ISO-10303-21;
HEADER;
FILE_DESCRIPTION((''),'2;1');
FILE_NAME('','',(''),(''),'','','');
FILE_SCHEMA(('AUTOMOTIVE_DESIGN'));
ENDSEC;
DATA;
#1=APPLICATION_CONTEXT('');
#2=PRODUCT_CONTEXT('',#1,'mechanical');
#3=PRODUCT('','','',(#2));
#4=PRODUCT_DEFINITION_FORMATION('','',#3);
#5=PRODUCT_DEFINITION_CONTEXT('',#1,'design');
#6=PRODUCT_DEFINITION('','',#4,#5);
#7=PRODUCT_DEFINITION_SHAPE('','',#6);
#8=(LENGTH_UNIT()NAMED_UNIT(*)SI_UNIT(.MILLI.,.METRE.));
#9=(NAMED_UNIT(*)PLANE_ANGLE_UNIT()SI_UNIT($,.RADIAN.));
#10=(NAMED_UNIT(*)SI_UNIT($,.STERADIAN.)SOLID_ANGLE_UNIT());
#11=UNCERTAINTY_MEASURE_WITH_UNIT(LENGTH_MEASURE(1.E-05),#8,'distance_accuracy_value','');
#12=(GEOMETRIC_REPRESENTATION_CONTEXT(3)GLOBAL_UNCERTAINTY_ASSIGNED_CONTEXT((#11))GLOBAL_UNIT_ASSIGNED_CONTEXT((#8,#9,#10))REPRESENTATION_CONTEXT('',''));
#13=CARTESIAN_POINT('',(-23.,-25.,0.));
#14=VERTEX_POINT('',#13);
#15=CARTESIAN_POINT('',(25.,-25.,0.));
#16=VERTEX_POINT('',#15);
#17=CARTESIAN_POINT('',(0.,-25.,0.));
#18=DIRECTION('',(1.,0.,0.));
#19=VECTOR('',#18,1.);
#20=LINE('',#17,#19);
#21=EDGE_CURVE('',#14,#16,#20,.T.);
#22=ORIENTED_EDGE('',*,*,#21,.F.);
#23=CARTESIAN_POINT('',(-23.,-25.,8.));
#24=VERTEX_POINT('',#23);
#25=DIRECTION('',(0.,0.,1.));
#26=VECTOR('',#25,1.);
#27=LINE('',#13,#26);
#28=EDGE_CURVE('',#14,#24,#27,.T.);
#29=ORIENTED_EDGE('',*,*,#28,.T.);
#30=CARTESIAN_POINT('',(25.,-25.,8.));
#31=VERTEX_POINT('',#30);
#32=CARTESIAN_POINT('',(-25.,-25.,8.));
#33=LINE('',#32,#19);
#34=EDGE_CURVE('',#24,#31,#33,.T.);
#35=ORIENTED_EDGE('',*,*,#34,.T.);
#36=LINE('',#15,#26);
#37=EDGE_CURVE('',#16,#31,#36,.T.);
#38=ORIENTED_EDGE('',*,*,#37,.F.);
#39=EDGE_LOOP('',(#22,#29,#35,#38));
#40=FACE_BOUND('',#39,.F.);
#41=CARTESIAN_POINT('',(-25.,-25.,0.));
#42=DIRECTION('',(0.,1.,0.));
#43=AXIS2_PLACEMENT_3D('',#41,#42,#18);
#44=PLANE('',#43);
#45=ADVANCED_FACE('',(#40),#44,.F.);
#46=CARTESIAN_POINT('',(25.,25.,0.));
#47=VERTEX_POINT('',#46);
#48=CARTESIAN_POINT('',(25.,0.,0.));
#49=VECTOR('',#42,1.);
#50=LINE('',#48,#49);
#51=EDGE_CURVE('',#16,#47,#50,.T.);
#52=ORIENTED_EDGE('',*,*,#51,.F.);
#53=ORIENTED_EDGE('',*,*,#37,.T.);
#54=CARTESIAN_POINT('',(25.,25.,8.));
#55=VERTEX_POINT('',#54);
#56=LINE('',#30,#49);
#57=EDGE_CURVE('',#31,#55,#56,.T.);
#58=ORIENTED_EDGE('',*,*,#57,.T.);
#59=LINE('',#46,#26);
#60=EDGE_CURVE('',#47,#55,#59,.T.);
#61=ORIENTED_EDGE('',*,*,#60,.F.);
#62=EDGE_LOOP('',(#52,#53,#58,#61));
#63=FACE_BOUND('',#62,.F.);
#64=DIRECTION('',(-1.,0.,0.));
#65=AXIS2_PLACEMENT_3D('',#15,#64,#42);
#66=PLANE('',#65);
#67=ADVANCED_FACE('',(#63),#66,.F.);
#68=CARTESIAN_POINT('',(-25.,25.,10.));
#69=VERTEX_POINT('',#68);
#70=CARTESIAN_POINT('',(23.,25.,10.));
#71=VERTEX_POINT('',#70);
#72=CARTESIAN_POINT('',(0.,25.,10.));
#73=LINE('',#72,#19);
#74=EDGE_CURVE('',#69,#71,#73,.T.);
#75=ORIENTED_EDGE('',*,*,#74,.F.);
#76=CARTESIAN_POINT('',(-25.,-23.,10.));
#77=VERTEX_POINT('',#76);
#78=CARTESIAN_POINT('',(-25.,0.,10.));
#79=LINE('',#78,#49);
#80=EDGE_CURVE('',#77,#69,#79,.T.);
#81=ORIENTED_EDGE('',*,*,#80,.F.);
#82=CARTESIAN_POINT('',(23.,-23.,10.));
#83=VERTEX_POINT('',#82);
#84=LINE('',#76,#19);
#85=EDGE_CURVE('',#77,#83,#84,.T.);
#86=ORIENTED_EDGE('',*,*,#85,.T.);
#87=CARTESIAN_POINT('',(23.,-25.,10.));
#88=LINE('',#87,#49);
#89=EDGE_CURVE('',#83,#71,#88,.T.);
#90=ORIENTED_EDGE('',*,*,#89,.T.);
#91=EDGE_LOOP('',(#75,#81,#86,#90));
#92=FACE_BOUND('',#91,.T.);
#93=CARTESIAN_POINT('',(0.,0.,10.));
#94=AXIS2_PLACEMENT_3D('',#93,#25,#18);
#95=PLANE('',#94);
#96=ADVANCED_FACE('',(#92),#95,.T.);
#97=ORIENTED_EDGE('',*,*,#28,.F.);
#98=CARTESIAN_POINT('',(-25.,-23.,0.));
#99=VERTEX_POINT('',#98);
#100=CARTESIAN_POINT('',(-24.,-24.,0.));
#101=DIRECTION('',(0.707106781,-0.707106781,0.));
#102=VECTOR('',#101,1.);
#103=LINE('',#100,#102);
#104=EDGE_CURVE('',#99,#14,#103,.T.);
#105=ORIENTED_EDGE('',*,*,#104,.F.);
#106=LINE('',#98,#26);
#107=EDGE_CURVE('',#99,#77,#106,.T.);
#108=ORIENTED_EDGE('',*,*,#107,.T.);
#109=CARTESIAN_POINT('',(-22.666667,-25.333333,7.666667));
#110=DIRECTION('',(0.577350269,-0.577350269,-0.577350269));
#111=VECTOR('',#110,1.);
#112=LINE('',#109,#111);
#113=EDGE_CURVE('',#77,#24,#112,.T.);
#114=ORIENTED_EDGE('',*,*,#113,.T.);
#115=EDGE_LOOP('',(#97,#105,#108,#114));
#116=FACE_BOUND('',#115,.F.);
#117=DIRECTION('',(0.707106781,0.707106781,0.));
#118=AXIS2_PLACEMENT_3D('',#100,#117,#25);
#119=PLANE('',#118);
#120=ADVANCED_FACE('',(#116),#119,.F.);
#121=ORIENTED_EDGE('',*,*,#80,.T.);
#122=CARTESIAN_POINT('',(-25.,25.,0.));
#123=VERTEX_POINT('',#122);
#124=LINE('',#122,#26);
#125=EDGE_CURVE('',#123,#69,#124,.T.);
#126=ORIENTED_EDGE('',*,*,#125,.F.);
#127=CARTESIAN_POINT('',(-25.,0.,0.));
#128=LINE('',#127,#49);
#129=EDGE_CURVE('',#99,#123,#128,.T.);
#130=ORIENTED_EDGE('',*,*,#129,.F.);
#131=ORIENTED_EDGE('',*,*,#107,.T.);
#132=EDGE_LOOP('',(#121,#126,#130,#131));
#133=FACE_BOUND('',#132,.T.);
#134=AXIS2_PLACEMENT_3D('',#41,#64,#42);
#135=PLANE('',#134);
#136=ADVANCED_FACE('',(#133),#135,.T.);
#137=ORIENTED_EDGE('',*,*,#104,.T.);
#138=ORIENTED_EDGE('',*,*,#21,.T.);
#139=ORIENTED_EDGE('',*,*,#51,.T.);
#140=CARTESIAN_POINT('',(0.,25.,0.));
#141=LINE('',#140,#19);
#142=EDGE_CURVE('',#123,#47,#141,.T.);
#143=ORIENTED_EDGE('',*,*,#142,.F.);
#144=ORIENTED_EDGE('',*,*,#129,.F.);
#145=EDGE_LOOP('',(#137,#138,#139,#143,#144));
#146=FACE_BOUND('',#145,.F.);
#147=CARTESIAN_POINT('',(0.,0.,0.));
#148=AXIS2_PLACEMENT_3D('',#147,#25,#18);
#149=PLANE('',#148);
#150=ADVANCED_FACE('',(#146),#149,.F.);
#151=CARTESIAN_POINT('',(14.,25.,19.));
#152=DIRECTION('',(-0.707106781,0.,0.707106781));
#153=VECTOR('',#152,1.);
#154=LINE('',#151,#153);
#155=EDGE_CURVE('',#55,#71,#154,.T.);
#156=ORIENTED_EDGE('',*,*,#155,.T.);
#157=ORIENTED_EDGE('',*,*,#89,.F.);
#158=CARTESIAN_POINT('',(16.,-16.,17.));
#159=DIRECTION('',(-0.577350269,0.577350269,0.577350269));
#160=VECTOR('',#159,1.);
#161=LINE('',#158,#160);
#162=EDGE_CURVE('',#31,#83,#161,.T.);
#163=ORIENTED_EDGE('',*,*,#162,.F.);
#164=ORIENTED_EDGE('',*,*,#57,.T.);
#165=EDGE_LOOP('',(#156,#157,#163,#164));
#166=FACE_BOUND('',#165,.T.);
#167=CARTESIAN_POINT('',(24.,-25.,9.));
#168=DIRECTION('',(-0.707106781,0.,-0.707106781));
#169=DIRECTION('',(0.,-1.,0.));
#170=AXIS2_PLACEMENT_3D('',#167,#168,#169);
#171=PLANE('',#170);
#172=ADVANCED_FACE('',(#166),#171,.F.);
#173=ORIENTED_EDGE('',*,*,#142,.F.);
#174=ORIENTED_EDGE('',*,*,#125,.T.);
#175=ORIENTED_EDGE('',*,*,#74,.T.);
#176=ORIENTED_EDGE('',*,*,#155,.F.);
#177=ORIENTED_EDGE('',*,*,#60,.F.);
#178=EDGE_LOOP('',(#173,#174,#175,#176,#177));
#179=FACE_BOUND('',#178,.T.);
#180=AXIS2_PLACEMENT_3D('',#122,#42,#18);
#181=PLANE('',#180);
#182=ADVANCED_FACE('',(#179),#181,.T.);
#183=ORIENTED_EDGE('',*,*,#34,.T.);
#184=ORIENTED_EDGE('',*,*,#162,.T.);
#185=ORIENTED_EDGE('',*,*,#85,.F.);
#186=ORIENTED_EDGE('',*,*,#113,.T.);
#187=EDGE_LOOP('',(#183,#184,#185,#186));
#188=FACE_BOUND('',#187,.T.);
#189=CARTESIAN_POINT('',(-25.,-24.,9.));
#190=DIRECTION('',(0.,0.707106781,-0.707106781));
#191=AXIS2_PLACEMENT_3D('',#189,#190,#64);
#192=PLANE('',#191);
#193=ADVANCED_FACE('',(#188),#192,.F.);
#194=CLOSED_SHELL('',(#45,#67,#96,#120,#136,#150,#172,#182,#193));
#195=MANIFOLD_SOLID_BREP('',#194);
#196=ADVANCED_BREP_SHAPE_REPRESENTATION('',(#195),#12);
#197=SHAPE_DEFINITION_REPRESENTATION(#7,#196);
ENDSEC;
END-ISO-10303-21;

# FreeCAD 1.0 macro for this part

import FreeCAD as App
import Part
import Sketcher

V = App.Vector
Q = App.Units.Quantity


def edges_at(feature, points):
    """Names of the edges that pass closest to the given points."""
    edges = feature.Shape.Edges
    near = lambda p: min(range(len(edges)), key=lambda i: edges[i].distToShape(Part.Vertex(*p))[0])
    return sorted({f"Edge{near(p) + 1}" for p in points})


def add_polygon(sketch, points):
    """Adds a closed chain of lines whose ends are joined by coincident constraints."""
    first, n = sketch.GeometryCount, len(points)
    for a, b in zip(points, points[1:] + points[:1]):
        sketch.addGeometry(Part.LineSegment(App.Vector(*a, 0), App.Vector(*b, 0)), False)
    for i in range(n):
        sketch.addConstraint(Sketcher.Constraint("Coincident", first + i, 2, first + (i + 1) % n, 1))

doc = App.newDocument("Part")
params = doc.addObject("Spreadsheet::Sheet", "Params")
for row, (alias, value) in enumerate([
    ("sketch1_width", "50 mm"),
    ("pad1_length", "10 mm"),
    ("chamfer_size", "2 mm"),
    ("chamfer2_size", "2 mm"),
], start=1):
    params.set(f"A{row}", alias)
    params.set(f"B{row}", "=" + value)
    params.setAlias(f"B{row}", alias)

body = doc.addObject("PartDesign::Body", "Body")

# Sketch on XY plane
sketch1 = body.newObject("Sketcher::SketchObject", "Sketch")
sketch1.AttachmentSupport = (doc.getObject("XY_Plane"), [""])
sketch1.MapMode = "FlatFace"
add_polygon(sketch1, [(-25, 25), (-25, -25), (25, -25), (25, 25)])  # lines 0-3
sketch1.addConstraint(Sketcher.Constraint("Vertical", 0))
sketch1.addConstraint(Sketcher.Constraint("Horizontal", 1))
sketch1.addConstraint(Sketcher.Constraint("Vertical", 2))
sketch1.addConstraint(Sketcher.Constraint("Horizontal", 3))
sketch1.addConstraint(Sketcher.Constraint("Symmetric", 0, 2, 2, 2, -1, 1))
sketch1.addConstraint(Sketcher.Constraint("Equal", 3, 0))
sketch1.addConstraint(Sketcher.Constraint("DistanceX", 1, 1, 1, 2, Q("50 mm")))
sketch1.setExpression("Constraints[10]", "Params.sketch1_width")
pad1 = body.newObject("PartDesign::Pad", "Pad")
pad1.Profile = sketch1
pad1.setExpression("Length", "Params.pad1_length")
doc.recompute()

chamfer = body.newObject("PartDesign::Chamfer", "Chamfer")
chamfer.Base = (pad1, edges_at(pad1, [(0, -25, 10), (25, 0, 10)]))
chamfer.setExpression("Size", "Params.chamfer_size")
doc.recompute()

chamfer2 = body.newObject("PartDesign::Chamfer", "Chamfer001")
chamfer2.Base = (chamfer, edges_at(chamfer, [(-25, -25, 4)]))
chamfer2.setExpression("Size", "Params.chamfer2_size")

doc.recompute()
